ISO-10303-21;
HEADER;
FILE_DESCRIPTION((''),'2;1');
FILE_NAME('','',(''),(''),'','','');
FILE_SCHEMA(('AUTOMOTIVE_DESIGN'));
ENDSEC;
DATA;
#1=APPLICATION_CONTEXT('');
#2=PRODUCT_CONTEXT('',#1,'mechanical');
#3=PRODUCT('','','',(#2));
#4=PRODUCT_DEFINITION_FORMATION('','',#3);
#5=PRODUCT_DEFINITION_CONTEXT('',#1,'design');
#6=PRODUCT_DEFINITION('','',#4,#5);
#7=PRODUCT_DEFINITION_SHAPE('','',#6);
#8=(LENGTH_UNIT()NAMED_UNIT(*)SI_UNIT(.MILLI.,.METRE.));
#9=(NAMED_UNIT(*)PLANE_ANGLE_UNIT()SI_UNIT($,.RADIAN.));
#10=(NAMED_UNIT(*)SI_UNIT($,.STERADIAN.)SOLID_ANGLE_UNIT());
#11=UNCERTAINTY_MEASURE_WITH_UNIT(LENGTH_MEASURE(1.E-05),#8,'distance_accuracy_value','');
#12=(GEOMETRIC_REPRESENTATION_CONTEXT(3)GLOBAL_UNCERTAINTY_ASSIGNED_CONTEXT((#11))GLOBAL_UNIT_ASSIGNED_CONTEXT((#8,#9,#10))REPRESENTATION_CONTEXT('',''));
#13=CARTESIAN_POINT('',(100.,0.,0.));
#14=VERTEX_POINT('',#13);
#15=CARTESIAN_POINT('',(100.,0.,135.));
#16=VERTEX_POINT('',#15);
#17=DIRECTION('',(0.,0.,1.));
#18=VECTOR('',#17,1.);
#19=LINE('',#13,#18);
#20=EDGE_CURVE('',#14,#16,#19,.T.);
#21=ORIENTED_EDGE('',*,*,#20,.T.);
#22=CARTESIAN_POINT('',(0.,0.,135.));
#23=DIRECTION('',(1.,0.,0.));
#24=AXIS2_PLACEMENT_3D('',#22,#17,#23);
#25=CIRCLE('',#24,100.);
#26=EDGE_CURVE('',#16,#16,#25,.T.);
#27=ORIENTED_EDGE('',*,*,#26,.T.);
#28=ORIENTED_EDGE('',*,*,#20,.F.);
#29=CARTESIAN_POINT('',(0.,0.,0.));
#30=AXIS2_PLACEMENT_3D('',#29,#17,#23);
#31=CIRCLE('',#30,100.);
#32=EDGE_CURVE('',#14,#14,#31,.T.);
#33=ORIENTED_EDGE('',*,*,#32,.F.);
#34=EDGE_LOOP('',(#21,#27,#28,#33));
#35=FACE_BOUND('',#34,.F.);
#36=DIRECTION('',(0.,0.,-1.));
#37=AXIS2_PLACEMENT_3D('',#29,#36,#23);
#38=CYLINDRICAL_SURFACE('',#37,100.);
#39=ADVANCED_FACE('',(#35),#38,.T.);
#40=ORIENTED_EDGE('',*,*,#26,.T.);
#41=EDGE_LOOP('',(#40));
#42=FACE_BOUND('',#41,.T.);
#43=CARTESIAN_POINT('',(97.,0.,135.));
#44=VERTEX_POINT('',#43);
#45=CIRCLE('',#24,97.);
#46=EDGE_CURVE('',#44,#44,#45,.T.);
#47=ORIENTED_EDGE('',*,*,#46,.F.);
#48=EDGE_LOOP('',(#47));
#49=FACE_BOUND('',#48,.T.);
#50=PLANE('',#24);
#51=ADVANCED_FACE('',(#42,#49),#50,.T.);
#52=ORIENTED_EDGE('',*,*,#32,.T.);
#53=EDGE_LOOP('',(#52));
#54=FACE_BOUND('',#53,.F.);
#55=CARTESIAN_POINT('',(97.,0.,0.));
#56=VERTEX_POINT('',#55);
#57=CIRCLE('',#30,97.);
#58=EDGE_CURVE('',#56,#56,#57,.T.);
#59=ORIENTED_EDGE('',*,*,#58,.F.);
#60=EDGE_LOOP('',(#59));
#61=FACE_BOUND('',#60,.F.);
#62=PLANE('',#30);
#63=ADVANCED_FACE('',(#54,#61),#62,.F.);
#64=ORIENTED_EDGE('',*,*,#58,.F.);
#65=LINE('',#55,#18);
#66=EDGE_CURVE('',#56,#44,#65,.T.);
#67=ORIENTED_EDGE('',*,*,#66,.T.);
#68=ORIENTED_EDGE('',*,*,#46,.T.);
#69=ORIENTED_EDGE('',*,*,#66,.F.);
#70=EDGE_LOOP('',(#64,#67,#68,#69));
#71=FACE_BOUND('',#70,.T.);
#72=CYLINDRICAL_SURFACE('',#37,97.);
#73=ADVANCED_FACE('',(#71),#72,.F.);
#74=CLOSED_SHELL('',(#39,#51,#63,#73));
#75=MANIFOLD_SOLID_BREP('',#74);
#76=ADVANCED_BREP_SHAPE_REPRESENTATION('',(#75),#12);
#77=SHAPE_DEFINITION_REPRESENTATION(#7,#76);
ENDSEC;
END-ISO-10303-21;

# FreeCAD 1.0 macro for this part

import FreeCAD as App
import Part
import Sketcher

V = App.Vector

doc = App.newDocument("Part")
body = doc.addObject("PartDesign::Body", "Body")

# Sketch on XY plane
sketch1 = body.newObject("Sketcher::SketchObject", "Sketch")
sketch1.AttachmentSupport = (doc.getObject("XY_Plane"), [""])
sketch1.MapMode = "FlatFace"
sketch1.addGeometry(Part.Circle(V(0, 0, 0), V(0, 0, 1), 100), False)
sketch1.addGeometry(Part.Circle(V(0, 0, 0), V(0, 0, 1), 97), False)
sketch1.addConstraint(Sketcher.Constraint("Coincident", 0, 3, -1, 1))
sketch1.addConstraint(Sketcher.Constraint("Coincident", 1, 3, -1, 1))
sketch1.addConstraint(Sketcher.Constraint("Diameter", 0, 200.0))
sketch1.addConstraint(Sketcher.Constraint("Diameter", 1, 194.0))
pad1 = body.newObject("PartDesign::Pad", "Pad")
pad1.Profile = sketch1
pad1.Length = 135

doc.recompute()
